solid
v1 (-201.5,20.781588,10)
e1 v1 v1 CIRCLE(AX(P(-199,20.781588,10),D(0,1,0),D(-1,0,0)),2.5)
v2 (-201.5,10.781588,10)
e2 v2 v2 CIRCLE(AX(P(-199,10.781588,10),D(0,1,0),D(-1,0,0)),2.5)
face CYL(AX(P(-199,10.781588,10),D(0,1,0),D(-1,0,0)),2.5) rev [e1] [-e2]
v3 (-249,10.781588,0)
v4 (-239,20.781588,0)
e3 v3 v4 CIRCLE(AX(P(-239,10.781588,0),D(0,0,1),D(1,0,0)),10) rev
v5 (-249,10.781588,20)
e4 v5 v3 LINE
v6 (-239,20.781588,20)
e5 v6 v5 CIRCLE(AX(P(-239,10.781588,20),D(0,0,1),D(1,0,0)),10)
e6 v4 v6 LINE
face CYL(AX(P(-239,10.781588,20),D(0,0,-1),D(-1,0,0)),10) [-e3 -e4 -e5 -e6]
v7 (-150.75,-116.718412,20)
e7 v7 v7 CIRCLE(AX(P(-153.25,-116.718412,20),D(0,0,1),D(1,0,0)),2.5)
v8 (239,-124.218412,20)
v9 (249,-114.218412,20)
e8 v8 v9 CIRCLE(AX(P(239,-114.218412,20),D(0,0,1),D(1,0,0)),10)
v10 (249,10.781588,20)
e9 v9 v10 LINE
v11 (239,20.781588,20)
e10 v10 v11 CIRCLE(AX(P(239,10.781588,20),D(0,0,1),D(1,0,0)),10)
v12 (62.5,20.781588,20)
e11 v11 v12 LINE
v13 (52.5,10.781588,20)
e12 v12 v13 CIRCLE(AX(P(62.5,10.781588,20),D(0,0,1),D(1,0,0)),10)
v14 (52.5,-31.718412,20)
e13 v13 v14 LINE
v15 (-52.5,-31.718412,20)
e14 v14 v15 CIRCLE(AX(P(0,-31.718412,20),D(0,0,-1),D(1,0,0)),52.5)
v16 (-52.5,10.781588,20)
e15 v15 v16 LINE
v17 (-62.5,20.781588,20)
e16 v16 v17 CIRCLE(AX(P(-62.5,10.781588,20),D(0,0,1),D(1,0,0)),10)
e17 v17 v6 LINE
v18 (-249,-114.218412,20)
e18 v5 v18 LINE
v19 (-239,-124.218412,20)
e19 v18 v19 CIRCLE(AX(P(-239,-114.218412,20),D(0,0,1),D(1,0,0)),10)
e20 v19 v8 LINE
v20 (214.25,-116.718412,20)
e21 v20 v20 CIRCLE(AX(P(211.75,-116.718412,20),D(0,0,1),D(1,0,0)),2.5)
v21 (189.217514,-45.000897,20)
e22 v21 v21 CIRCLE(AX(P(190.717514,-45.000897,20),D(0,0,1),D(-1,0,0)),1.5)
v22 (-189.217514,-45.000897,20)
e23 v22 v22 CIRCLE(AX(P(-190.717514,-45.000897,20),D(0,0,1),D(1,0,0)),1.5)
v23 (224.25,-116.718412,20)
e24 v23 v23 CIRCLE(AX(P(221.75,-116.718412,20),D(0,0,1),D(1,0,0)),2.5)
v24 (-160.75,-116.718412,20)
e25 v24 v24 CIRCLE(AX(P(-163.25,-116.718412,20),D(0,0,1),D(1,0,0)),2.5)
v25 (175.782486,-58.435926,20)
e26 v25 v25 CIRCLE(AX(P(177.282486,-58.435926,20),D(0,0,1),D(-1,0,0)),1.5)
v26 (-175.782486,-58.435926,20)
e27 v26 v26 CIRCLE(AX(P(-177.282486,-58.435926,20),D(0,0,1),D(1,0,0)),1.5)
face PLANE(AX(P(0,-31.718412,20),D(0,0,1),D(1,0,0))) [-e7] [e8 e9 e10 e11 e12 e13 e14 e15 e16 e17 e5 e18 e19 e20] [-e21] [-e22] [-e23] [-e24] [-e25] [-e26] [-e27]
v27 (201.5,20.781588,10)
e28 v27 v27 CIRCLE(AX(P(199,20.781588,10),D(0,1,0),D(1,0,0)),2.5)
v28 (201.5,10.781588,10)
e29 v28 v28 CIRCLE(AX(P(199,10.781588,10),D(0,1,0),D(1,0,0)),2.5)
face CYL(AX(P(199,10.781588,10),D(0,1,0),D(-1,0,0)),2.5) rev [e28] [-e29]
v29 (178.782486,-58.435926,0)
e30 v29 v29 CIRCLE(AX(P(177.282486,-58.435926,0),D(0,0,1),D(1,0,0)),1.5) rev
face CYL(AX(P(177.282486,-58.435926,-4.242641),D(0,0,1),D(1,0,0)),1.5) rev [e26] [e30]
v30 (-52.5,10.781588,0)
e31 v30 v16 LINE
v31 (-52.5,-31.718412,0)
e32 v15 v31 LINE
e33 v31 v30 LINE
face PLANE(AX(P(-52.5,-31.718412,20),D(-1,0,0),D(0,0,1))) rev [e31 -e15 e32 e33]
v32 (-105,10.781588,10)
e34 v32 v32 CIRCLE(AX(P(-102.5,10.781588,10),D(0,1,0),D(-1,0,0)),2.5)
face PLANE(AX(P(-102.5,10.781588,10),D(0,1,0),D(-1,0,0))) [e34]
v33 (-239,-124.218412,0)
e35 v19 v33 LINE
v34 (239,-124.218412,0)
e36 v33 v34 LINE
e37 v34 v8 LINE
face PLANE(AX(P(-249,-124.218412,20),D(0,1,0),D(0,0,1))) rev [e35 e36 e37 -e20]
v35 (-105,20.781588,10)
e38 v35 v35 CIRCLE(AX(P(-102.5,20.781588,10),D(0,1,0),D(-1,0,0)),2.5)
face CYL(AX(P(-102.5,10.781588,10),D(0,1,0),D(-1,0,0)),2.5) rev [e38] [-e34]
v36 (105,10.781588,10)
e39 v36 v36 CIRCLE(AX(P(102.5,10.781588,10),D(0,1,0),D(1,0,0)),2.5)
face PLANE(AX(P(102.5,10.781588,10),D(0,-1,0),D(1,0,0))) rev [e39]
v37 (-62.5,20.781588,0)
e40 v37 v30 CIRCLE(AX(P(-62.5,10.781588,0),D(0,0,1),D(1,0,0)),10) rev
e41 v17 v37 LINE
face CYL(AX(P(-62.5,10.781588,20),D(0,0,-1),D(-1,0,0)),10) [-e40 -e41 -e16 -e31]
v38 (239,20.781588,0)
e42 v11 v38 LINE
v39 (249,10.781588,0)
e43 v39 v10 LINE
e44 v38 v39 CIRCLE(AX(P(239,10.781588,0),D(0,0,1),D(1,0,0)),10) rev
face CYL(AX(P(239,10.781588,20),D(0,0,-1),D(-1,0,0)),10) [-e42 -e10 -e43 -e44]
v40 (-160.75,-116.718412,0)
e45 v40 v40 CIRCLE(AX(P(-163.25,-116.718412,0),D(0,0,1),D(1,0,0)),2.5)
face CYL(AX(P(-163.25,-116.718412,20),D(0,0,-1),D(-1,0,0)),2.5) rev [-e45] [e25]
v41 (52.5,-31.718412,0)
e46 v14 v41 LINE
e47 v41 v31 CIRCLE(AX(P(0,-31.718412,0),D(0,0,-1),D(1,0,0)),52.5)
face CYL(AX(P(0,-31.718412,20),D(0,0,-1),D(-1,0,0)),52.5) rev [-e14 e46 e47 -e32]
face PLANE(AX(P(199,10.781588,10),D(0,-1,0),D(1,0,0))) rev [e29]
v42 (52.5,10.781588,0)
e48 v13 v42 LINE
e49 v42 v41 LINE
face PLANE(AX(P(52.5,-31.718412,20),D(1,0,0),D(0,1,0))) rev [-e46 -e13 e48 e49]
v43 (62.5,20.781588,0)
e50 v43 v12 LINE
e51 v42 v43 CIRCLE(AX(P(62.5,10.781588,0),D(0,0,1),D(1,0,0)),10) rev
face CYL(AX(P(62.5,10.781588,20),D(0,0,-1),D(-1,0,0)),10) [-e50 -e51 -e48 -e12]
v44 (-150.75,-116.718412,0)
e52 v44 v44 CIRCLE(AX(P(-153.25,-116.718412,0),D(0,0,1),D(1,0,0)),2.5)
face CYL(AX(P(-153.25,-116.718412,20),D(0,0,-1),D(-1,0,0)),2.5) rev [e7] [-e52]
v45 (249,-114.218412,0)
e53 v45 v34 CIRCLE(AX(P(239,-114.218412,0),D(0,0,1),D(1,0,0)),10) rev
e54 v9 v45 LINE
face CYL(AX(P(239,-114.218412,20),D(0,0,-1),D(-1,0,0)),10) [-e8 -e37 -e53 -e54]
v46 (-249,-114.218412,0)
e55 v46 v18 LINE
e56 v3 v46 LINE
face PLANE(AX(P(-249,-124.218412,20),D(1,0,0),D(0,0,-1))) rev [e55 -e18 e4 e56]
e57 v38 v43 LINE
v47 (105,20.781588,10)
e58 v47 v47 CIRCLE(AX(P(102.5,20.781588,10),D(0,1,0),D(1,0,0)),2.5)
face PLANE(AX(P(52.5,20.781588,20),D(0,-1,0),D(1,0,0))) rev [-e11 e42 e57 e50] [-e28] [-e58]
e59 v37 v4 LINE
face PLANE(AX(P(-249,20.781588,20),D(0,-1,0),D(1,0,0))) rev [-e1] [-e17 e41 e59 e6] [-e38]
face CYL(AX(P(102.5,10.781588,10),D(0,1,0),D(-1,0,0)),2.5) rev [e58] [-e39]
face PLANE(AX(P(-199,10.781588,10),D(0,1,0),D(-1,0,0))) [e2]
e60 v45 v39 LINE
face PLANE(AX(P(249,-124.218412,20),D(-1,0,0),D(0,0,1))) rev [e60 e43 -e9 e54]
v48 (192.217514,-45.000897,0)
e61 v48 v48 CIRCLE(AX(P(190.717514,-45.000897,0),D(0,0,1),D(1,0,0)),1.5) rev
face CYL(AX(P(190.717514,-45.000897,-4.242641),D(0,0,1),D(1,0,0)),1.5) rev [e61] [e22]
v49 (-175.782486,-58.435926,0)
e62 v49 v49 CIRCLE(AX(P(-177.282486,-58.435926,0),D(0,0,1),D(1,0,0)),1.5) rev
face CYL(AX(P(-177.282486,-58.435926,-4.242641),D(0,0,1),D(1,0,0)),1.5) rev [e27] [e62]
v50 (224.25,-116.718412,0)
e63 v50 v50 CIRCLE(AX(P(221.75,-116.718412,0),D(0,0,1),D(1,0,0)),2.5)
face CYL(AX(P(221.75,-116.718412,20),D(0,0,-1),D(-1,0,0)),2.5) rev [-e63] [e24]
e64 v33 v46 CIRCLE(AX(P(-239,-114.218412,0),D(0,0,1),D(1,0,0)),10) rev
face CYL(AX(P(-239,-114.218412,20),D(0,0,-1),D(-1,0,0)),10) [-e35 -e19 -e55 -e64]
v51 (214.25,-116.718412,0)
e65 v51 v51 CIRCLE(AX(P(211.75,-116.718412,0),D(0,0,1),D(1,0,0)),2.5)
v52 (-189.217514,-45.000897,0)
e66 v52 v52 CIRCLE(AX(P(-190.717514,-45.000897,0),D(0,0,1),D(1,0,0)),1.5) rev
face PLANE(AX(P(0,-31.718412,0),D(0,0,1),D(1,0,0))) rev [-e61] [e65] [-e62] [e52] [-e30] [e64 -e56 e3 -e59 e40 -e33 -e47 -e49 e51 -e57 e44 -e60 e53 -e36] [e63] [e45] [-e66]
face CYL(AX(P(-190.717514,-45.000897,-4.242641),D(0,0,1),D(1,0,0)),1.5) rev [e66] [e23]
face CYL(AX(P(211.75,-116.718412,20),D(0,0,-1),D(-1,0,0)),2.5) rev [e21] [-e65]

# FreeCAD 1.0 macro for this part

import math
import FreeCAD as App
import Part
import Sketcher

V = App.Vector


def edges_at(feature, points):
    """Names of the edges that pass closest to the given points."""
    edges = feature.Shape.Edges
    near = lambda p: min(range(len(edges)), key=lambda i: edges[i].distToShape(Part.Vertex(*p))[0])
    return sorted({f"Edge{near(p) + 1}" for p in points})

doc = App.newDocument("Part")
body = doc.addObject("PartDesign::Body", "Body")

# Sketch on XY plane
sketch1 = doc.addObject("Sketcher::SketchObject", "Sketch")
body.addObject(sketch1)
sketch1.AttachmentSupport = (doc.XY_Plane, [""])
sketch1.MapMode = "FlatFace"
sketch1.addGeometry([
    Part.LineSegment(V(249, 20.8, 0), V(52.5, 20.8, 0)),  # 0
    Part.LineSegment(V(52.5, 20.8, 0), V(52.5, -31.7, 0)),  # 1
    Part.ArcOfCircle(Part.Circle(V(0, -31.7, 0), V(0, 0, 1), 52.5), math.radians(180), math.radians(360)),  # 2
    Part.LineSegment(V(-52.5, -31.7, 0), V(-52.5, 20.8, 0)),  # 3
    Part.LineSegment(V(-52.5, 20.8, 0), V(-249, 20.8, 0)),  # 4
    Part.LineSegment(V(-249, 20.8, 0), V(-249, -124.2, 0)),  # 5
    Part.LineSegment(V(-249, -124.2, 0), V(249, -124.2, 0)),  # 6
    Part.LineSegment(V(249, -124.2, 0), V(249, 20.8, 0)),  # 7
    Part.Circle(V(221.8, -116.7, 0), V(0, 0, 1), 2.5),  # 8
    Part.Circle(V(211.8, -116.7, 0), V(0, 0, 1), 2.5),  # 9
    Part.Circle(V(-153.2, -116.7, 0), V(0, 0, 1), 2.5),  # 10
    Part.Circle(V(-163.2, -116.7, 0), V(0, 0, 1), 2.5),  # 11
], False)
sketch1.addConstraint([
    Sketcher.Constraint("Coincident", 0, 2, 1, 1),
    Sketcher.Constraint("Tangent", 1, 2, 2, 2),
    Sketcher.Constraint("Tangent", 2, 1, 3, 1),
    Sketcher.Constraint("Coincident", 3, 2, 4, 1),
    Sketcher.Constraint("Coincident", 4, 2, 5, 1),
    Sketcher.Constraint("Coincident", 5, 2, 6, 1),
    Sketcher.Constraint("Coincident", 6, 2, 7, 1),
    Sketcher.Constraint("Coincident", 7, 2, 0, 1),
    Sketcher.Constraint("Horizontal", 0),
    Sketcher.Constraint("Vertical", 1),
    Sketcher.Constraint("Vertical", 3),
    Sketcher.Constraint("Horizontal", 4),
    Sketcher.Constraint("Vertical", 5),
    Sketcher.Constraint("Horizontal", 6),
    Sketcher.Constraint("Vertical", 7),
    Sketcher.Constraint("Equal", 8, 9),
    Sketcher.Constraint("Equal", 9, 10),
    Sketcher.Constraint("Equal", 10, 11),
    Sketcher.Constraint("Symmetric", 0, 2, 3, 2, -2),
    Sketcher.Constraint("Horizontal", 8, 3, 9, 3),
    Sketcher.Constraint("Horizontal", 9, 3, 10, 3),
    Sketcher.Constraint("Horizontal", 10, 3, 11, 3),
    Sketcher.Constraint("Equal", 0, 4),
    Sketcher.Constraint("Diameter", 8, 5.0),
    Sketcher.Constraint("Radius", 2, 52.5),
    Sketcher.Constraint("DistanceX", 6, 1, 6, 2, 498.0),
    Sketcher.Constraint("DistanceY", 5, 2, 5, 1, 145.0),
    Sketcher.Constraint("DistanceY", 1, 2, 1, 1, 52.5),
    Sketcher.Constraint("DistanceY", 8, 3, 2, 3, 85.0),
    Sketcher.Constraint("DistanceX", 9, 3, 8, 3, 10.0),
    Sketcher.Constraint("DistanceX", 10, 3, 9, 3, 365.0),
    Sketcher.Constraint("DistanceX", 11, 3, 10, 3, 10.0),
    Sketcher.Constraint("DistanceX", -1, 1, 8, 3, 221.75),
    Sketcher.Constraint("DistanceY", 2, 3, -1, 1, 31.718412),
])
pad1 = doc.addObject("PartDesign::Pad", "Pad")
body.addObject(pad1)
pad1.Profile = sketch1
pad1.Length = 20
doc.recompute()

fillet = doc.addObject("PartDesign::Fillet", "Fillet")
body.addObject(fillet)
fillet.Base = (pad1, edges_at(pad1, [(249, -124.218, 10), (-249, -124.218, 10)]))
fillet.Radius = 10

# Sketch on XY plane
sketch2 = doc.addObject("Sketcher::SketchObject", "Sketch001")
body.addObject(sketch2)
sketch2.AttachmentSupport = (doc.XY_Plane, [""])
sketch2.MapMode = "FlatFace"
sketch2.AttachmentOffset = App.Placement(V(0, 0, 20), App.Rotation())
sketch2.addGeometry([
    Part.Circle(V(-177.3, -58.4, 0), V(0, 0, 1), 1.5),
    Part.Circle(V(-190.7, -45, 0), V(0, 0, 1), 1.5),
    Part.Circle(V(190.7, -45, 0), V(0, 0, 1), 1.5),
    Part.Circle(V(177.3, -58.4, 0), V(0, 0, 1), 1.5),
], False)
sketch2.addConstraint([
    Sketcher.Constraint("Equal", 0, 1),
    Sketcher.Constraint("Equal", 1, 2),
    Sketcher.Constraint("Equal", 2, 3),
    Sketcher.Constraint("Symmetric", 1, 3, 2, 3, -2),
    Sketcher.Constraint("Symmetric", 0, 3, 3, 3, -2),
    Sketcher.Constraint("Diameter", 0, 3.0),
    Sketcher.Constraint("DistanceX", 0, 3, 2, 3, 368.0),
    Sketcher.Constraint("DistanceX", 1, 3, 0, 3, 13.435029),
    Sketcher.Constraint("DistanceY", 0, 3, 1, 3, 13.435029),
    Sketcher.Constraint("DistanceY", 0, 3, -1, 1, 58.435926),
])
pocket1 = doc.addObject("PartDesign::Pocket", "Pocket")
body.addObject(pocket1)
pocket1.Profile = sketch2
pocket1.Length = 20

# Sketch on XZ plane
sketch3 = doc.addObject("Sketcher::SketchObject", "Sketch002")
body.addObject(sketch3)
sketch3.AttachmentSupport = (doc.XZ_Plane, [""])
sketch3.MapMode = "FlatFace"
sketch3.AttachmentOffset = App.Placement(V(0, 0, -20.781588), App.Rotation())
sketch3.addGeometry([
    Part.Circle(V(-199, 10, 0), V(0, 0, 1), 2.5),
    Part.Circle(V(-102.5, 10, 0), V(0, 0, 1), 2.5),
    Part.Circle(V(102.5, 10, 0), V(0, 0, 1), 2.5),
    Part.Circle(V(199, 10, 0), V(0, 0, 1), 2.5),
], False)
sketch3.addConstraint([
    Sketcher.Constraint("Equal", 0, 1),
    Sketcher.Constraint("Equal", 1, 2),
    Sketcher.Constraint("Equal", 2, 3),
    Sketcher.Constraint("Symmetric", 1, 3, 2, 3, -2),
    Sketcher.Constraint("Symmetric", 0, 3, 3, 3, -2),
    Sketcher.Constraint("Horizontal", 0, 3, 1, 3),
    Sketcher.Constraint("Diameter", 0, 5.0),
    Sketcher.Constraint("DistanceX", 0, 3, -1, 1, 199.0),
    Sketcher.Constraint("DistanceY", -1, 1, 0, 3, 10.0),
    Sketcher.Constraint("DistanceX", 1, 3, 2, 3, 205.0),
])
pocket2 = doc.addObject("PartDesign::Pocket", "Pocket001")
body.addObject(pocket2)
pocket2.Profile = sketch3
pocket2.Length = 10
pocket2.Reversed = True
doc.recompute()

fillet2 = doc.addObject("PartDesign::Fillet", "Fillet001")
body.addObject(fillet2)
fillet2.Base = (pocket2, edges_at(pocket2, [
    (-249, 20.782, 10),
    (-52.5, 20.782, 10),
    (52.5, 20.782, 10),
    (249, 20.782, 10),
]))
fillet2.Radius = 10

doc.recompute()
